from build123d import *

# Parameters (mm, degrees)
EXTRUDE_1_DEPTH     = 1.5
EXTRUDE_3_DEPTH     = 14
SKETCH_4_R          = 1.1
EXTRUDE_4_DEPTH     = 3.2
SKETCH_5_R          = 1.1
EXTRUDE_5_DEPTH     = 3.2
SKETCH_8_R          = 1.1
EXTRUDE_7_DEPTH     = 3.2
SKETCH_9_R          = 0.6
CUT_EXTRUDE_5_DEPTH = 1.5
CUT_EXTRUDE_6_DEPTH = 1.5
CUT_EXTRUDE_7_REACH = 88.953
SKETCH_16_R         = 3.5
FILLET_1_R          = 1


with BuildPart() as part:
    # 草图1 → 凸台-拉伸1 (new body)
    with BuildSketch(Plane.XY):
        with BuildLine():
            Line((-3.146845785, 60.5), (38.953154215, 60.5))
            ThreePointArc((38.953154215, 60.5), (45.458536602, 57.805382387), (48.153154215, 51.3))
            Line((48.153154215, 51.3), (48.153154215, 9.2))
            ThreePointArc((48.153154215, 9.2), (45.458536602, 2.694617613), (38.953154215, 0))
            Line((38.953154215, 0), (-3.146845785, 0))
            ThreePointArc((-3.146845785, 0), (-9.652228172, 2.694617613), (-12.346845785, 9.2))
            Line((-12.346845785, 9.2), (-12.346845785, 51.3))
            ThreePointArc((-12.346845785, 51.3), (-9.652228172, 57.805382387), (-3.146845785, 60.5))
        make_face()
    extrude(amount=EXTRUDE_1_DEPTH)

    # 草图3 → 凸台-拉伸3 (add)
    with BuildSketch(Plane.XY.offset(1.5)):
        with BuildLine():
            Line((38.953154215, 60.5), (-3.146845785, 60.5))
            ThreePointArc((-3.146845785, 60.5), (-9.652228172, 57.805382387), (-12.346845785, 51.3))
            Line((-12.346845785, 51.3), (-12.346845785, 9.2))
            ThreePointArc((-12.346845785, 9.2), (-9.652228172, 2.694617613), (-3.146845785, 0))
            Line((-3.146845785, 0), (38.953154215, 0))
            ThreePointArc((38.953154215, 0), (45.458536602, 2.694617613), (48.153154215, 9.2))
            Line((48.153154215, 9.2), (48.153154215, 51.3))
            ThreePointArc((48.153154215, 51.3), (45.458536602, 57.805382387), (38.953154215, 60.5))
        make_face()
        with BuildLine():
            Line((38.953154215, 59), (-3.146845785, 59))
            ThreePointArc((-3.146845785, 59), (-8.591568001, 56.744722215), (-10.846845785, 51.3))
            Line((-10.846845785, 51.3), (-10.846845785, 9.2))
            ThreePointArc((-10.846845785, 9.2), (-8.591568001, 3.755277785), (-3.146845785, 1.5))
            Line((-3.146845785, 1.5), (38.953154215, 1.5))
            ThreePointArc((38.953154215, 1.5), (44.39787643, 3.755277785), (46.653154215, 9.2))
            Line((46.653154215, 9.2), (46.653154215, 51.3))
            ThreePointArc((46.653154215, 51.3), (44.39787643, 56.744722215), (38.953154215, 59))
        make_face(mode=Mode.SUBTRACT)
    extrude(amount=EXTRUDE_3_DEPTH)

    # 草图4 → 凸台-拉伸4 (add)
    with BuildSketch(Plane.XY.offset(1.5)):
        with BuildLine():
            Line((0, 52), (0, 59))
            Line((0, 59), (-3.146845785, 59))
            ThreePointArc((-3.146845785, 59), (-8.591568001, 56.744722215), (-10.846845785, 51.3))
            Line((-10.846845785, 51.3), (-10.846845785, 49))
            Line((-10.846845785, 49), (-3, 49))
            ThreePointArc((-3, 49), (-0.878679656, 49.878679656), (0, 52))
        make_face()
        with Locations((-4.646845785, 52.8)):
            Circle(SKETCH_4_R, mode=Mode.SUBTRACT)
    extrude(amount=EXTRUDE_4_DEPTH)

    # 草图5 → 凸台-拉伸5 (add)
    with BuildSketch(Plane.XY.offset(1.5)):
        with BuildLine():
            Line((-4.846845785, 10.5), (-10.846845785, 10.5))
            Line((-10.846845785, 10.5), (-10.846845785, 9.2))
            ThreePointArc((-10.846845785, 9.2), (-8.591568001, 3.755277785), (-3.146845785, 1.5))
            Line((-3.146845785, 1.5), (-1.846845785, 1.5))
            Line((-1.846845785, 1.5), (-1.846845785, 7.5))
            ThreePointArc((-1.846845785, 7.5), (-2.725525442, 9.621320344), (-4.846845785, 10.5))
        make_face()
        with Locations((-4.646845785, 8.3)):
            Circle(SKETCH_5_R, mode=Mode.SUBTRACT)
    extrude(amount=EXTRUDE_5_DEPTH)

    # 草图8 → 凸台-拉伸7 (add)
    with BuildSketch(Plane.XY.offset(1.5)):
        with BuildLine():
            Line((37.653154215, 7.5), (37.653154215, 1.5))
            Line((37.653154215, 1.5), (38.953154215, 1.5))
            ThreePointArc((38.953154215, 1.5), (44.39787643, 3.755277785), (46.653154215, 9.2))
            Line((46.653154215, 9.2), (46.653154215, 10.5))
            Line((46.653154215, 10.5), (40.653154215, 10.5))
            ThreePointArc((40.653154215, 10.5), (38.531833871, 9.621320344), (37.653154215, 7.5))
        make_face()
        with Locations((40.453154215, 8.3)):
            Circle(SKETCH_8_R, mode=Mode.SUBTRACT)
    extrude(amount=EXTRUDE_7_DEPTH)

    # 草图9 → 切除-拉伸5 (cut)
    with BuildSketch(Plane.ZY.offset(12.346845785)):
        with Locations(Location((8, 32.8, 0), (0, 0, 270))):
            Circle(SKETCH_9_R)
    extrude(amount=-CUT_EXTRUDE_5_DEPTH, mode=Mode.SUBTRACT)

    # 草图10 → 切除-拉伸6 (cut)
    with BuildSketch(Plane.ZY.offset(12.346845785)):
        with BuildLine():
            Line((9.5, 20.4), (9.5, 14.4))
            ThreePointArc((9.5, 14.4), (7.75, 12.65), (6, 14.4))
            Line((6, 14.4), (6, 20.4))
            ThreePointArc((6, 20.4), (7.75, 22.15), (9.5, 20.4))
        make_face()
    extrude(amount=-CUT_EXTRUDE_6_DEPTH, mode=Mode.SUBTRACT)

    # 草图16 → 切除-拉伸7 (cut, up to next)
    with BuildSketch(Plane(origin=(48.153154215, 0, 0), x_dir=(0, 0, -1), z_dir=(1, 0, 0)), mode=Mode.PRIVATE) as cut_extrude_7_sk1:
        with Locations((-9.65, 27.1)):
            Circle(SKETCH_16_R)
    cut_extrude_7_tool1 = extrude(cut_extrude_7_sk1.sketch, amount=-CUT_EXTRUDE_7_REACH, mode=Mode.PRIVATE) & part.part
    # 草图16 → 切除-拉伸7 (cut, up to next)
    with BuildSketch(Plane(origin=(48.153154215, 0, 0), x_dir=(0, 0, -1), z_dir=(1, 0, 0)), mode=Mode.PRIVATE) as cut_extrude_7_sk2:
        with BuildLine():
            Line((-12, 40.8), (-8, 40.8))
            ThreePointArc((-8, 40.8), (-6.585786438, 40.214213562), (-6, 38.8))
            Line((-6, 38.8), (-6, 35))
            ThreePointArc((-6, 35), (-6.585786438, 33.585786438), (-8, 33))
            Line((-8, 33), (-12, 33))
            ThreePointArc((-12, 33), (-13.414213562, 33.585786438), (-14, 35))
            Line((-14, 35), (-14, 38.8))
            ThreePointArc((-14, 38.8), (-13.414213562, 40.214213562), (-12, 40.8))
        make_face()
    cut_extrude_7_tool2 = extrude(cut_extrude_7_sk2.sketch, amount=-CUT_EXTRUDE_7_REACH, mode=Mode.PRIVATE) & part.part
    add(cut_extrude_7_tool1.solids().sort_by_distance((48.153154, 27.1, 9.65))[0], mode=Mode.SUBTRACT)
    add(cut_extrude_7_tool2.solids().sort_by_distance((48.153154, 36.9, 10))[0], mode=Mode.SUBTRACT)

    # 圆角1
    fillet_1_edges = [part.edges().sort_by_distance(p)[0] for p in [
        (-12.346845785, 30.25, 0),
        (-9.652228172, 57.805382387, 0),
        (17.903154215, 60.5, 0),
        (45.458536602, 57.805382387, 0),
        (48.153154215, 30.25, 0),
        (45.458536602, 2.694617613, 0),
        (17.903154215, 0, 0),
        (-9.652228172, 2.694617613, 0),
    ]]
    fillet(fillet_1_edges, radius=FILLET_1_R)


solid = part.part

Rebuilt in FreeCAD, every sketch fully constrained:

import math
import FreeCAD as App
import Part
import Sketcher

V = App.Vector


def edges_at(feature, points):
    """Names of the edges that pass closest to the given points."""
    edges = feature.Shape.Edges
    near = lambda p: min(range(len(edges)), key=lambda i: edges[i].distToShape(Part.Vertex(*p))[0])
    return sorted({f"Edge{near(p) + 1}" for p in points})

doc = App.newDocument("Part")
body = doc.addObject("PartDesign::Body", "Body")

sketch1 = doc.addObject("Sketcher::SketchObject", "Sketch")
body.addObject(sketch1)
sketch1.AttachmentSupport = (doc.XY_Plane, [""])
sketch1.MapMode = "FlatFace"
sketch1.addGeometry([
    Part.LineSegment(V(38.953154, 60.5, 0), V(-3.146846, 60.5, 0)),
    Part.ArcOfCircle(Part.Circle(V(-3.146846, 51.3, 0), V(0, 0, 1), 9.2), math.radians(90), math.radians(180)),
    Part.LineSegment(V(-12.346846, 51.3, 0), V(-12.346846, 9.2, 0)),
    Part.ArcOfCircle(Part.Circle(V(-3.146846, 9.2, 0), V(0, 0, 1), 9.2), math.radians(180), math.radians(270)),
    Part.LineSegment(V(-3.146846, 0, 0), V(38.953154, 0, 0)),
    Part.ArcOfCircle(Part.Circle(V(38.953154, 9.2, 0), V(0, 0, 1), 9.2), math.radians(-90), math.radians(0)),
    Part.LineSegment(V(48.153154, 9.2, 0), V(48.153154, 51.3, 0)),
    Part.ArcOfCircle(Part.Circle(V(38.953154, 51.3, 0), V(0, 0, 1), 9.2), math.radians(0), math.radians(90)),
], False)
sketch1.addConstraint([
    Sketcher.Constraint("Tangent", 0, 2, 1, 1),
    Sketcher.Constraint("Tangent", 1, 2, 2, 1),
    Sketcher.Constraint("Tangent", 2, 2, 3, 1),
    Sketcher.Constraint("Tangent", 3, 2, 4, 1),
    Sketcher.Constraint("Tangent", 4, 2, 5, 1),
    Sketcher.Constraint("Tangent", 5, 2, 6, 1),
    Sketcher.Constraint("Tangent", 6, 2, 7, 1),
    Sketcher.Constraint("Tangent", 7, 2, 0, 1),
    Sketcher.Constraint("Horizontal", 0),
    Sketcher.Constraint("Vertical", 2),
    Sketcher.Constraint("Horizontal", 4),
    Sketcher.Constraint("Vertical", 6),
    Sketcher.Constraint("Equal", 1, 3),
    Sketcher.Constraint("Equal", 3, 5),
    Sketcher.Constraint("Equal", 5, 7),
    Sketcher.Constraint("PointOnObject", 3, 2, -1),
    Sketcher.Constraint("Equal", 4, 2),
    Sketcher.Constraint("Radius", 1, 9.2),
    Sketcher.Constraint("DistanceX", 0, 2, 0, 1, 42.1),
    Sketcher.Constraint("DistanceX", 1, 3, -1, 1, 3.146846),
])
pad1 = doc.addObject("PartDesign::Pad", "Pad")
body.addObject(pad1)
pad1.Profile = sketch1
pad1.Length = 1.5

sketch2 = doc.addObject("Sketcher::SketchObject", "Sketch001")
body.addObject(sketch2)
sketch2.AttachmentSupport = (doc.XY_Plane, [""])
sketch2.MapMode = "FlatFace"
sketch2.AttachmentOffset = App.Placement(V(0, 0, 1.5), App.Rotation())
sketch2.addGeometry([
    Part.LineSegment(V(38.953154, 60.5, 0), V(-3.146846, 60.5, 0)),
    Part.ArcOfCircle(Part.Circle(V(-3.146846, 51.3, 0), V(0, 0, 1), 9.2), math.radians(90), math.radians(180)),
    Part.LineSegment(V(-12.346846, 51.3, 0), V(-12.346846, 9.2, 0)),
    Part.ArcOfCircle(Part.Circle(V(-3.146846, 9.2, 0), V(0, 0, 1), 9.2), math.radians(180), math.radians(270)),
    Part.LineSegment(V(-3.146846, 0, 0), V(38.953154, 0, 0)),
    Part.ArcOfCircle(Part.Circle(V(38.953154, 9.2, 0), V(0, 0, 1), 9.2), math.radians(-90), math.radians(0)),
    Part.LineSegment(V(48.153154, 9.2, 0), V(48.153154, 51.3, 0)),
    Part.ArcOfCircle(Part.Circle(V(38.953154, 51.3, 0), V(0, 0, 1), 9.2), math.radians(0), math.radians(90)),
    Part.LineSegment(V(-3.146846, 59, 0), V(38.953154, 59, 0)),
    Part.ArcOfCircle(Part.Circle(V(38.953154, 51.3, 0), V(0, 0, 1), 7.7), math.radians(0), math.radians(90)),
    Part.LineSegment(V(46.653154, 51.3, 0), V(46.653154, 9.2, 0)),
    Part.ArcOfCircle(Part.Circle(V(38.953154, 9.2, 0), V(0, 0, 1), 7.7), math.radians(-90), math.radians(0)),
    Part.LineSegment(V(38.953154, 1.5, 0), V(-3.146846, 1.5, 0)),
    Part.ArcOfCircle(Part.Circle(V(-3.146846, 9.2, 0), V(0, 0, 1), 7.7), math.radians(180), math.radians(270)),
    Part.LineSegment(V(-10.846846, 9.2, 0), V(-10.846846, 51.3, 0)),
    Part.ArcOfCircle(Part.Circle(V(-3.146846, 51.3, 0), V(0, 0, 1), 7.7), math.radians(90), math.radians(180)),
], False)
sketch2.addConstraint([
    Sketcher.Constraint("Tangent", 0, 2, 1, 1),
    Sketcher.Constraint("Tangent", 1, 2, 2, 1),
    Sketcher.Constraint("Tangent", 2, 2, 3, 1),
    Sketcher.Constraint("Tangent", 3, 2, 4, 1),
    Sketcher.Constraint("Tangent", 4, 2, 5, 1),
    Sketcher.Constraint("Tangent", 5, 2, 6, 1),
    Sketcher.Constraint("Tangent", 6, 2, 7, 1),
    Sketcher.Constraint("Tangent", 7, 2, 0, 1),
    Sketcher.Constraint("Tangent", 8, 2, 9, 2),
    Sketcher.Constraint("Tangent", 9, 1, 10, 1),
    Sketcher.Constraint("Tangent", 10, 2, 11, 2),
    Sketcher.Constraint("Tangent", 11, 1, 12, 1),
    Sketcher.Constraint("Tangent", 12, 2, 13, 2),
    Sketcher.Constraint("Tangent", 13, 1, 14, 1),
    Sketcher.Constraint("Tangent", 14, 2, 15, 2),
    Sketcher.Constraint("Tangent", 15, 1, 8, 1),
    Sketcher.Constraint("Horizontal", 0),
    Sketcher.Constraint("Vertical", 2),
    Sketcher.Constraint("Horizontal", 4),
    Sketcher.Constraint("Vertical", 6),
    Sketcher.Constraint("Horizontal", 8),
    Sketcher.Constraint("Vertical", 10),
    Sketcher.Constraint("Horizontal", 12),
    Sketcher.Constraint("Vertical", 14),
    Sketcher.Constraint("Coincident", 9, 3, 7, 3),
    Sketcher.Constraint("Coincident", 11, 3, 5, 3),
    Sketcher.Constraint("Coincident", 13, 3, 3, 3),
    Sketcher.Constraint("Equal", 1, 3),
    Sketcher.Constraint("Equal", 3, 5),
    Sketcher.Constraint("Equal", 5, 7),
    Sketcher.Constraint("Equal", 13, 15),
    Sketcher.Constraint("PointOnObject", 3, 2, -1),
    Sketcher.Constraint("Equal", 12, 2),
    Sketcher.Constraint("Radius", 1, 9.2),
    Sketcher.Constraint("Radius", 9, 7.7),
    Sketcher.Constraint("DistanceX", 0, 2, 0, 1, 42.1),
    Sketcher.Constraint("DistanceX", 1, 3, -1, 1, 3.146846),
])
pad2 = doc.addObject("PartDesign::Pad", "Pad001")
body.addObject(pad2)
pad2.Profile = sketch2
pad2.Length = 14

sketch3 = doc.addObject("Sketcher::SketchObject", "Sketch002")
body.addObject(sketch3)
sketch3.AttachmentSupport = (doc.XY_Plane, [""])
sketch3.MapMode = "FlatFace"
sketch3.AttachmentOffset = App.Placement(V(0, 0, 1.5), App.Rotation())
sketch3.addGeometry([
    Part.LineSegment(V(0, 52, 0), V(0, 59, 0)),
    Part.LineSegment(V(0, 59, 0), V(-3.146846, 59, 0)),
    Part.ArcOfCircle(Part.Circle(V(-3.146846, 51.3, 0), V(0, 0, 1), 7.7), math.radians(90), math.radians(180)),
    Part.LineSegment(V(-10.846846, 51.3, 0), V(-10.846846, 49, 0)),
    Part.LineSegment(V(-10.846846, 49, 0), V(-3, 49, 0)),
    Part.ArcOfCircle(Part.Circle(V(-3, 52, 0), V(0, 0, 1), 3), math.radians(-90), math.radians(0)),
    Part.Circle(V(-4.646846, 52.8, 0), V(0, 0, 1), 1.1),
], False)
sketch3.addConstraint([
    Sketcher.Constraint("Coincident", 0, 2, 1, 1),
    Sketcher.Constraint("Tangent", 1, 2, 2, 1),
    Sketcher.Constraint("Tangent", 2, 2, 3, 1),
    Sketcher.Constraint("Coincident", 3, 2, 4, 1),
    Sketcher.Constraint("Tangent", 4, 2, 5, 1),
    Sketcher.Constraint("Tangent", 5, 2, 0, 1),
    Sketcher.Constraint("Vertical", 0),
    Sketcher.Constraint("Horizontal", 1),
    Sketcher.Constraint("Vertical", 3),
    Sketcher.Constraint("Horizontal", 4),
    Sketcher.Constraint("PointOnObject", 0, 2, -2),
    Sketcher.Constraint("Radius", 5, 3.0),
    Sketcher.Constraint("Diameter", 6, 2.2),
    Sketcher.Constraint("Radius", 2, 7.7),
    Sketcher.Constraint("DistanceY", 0, 1, 0, 2, 7.0),
    Sketcher.Constraint("DistanceY", -1, 1, 5, 3, 52.0),
    Sketcher.Constraint("DistanceY", -1, 1, 6, 3, 52.8),
    Sketcher.Constraint("DistanceX", 6, 3, 2, 3, 1.5),
    Sketcher.Constraint("DistanceX", 1, 2, 1, 1, 3.146846),
])
pad3 = doc.addObject("PartDesign::Pad", "Pad002")
body.addObject(pad3)
pad3.Profile = sketch3
pad3.Length = 3.2

sketch4 = doc.addObject("Sketcher::SketchObject", "Sketch003")
body.addObject(sketch4)
sketch4.AttachmentSupport = (doc.XY_Plane, [""])
sketch4.MapMode = "FlatFace"
sketch4.AttachmentOffset = App.Placement(V(0, 0, 1.5), App.Rotation())
sketch4.addGeometry([
    Part.LineSegment(V(-4.846846, 10.5, 0), V(-10.846846, 10.5, 0)),
    Part.LineSegment(V(-10.846846, 10.5, 0), V(-10.846846, 9.2, 0)),
    Part.ArcOfCircle(Part.Circle(V(-3.146846, 9.2, 0), V(0, 0, 1), 7.7), math.radians(180), math.radians(270)),
    Part.LineSegment(V(-3.146846, 1.5, 0), V(-1.846846, 1.5, 0)),
    Part.LineSegment(V(-1.846846, 1.5, 0), V(-1.846846, 7.5, 0)),
    Part.ArcOfCircle(Part.Circle(V(-4.846846, 7.5, 0), V(0, 0, 1), 3), math.radians(0), math.radians(90)),
    Part.Circle(V(-4.646846, 8.3, 0), V(0, 0, 1), 1.1),
], False)
sketch4.addConstraint([
    Sketcher.Constraint("Coincident", 0, 2, 1, 1),
    Sketcher.Constraint("Tangent", 1, 2, 2, 1),
    Sketcher.Constraint("Tangent", 2, 2, 3, 1),
    Sketcher.Constraint("Coincident", 3, 2, 4, 1),
    Sketcher.Constraint("Tangent", 4, 2, 5, 1),
    Sketcher.Constraint("Tangent", 5, 2, 0, 1),
    Sketcher.Constraint("Horizontal", 0),
    Sketcher.Constraint("Vertical", 1),
    Sketcher.Constraint("Horizontal", 3),
    Sketcher.Constraint("Vertical", 4),
    Sketcher.Constraint("Equal", 3, 1),
    Sketcher.Constraint("Radius", 5, 3.0),
    Sketcher.Constraint("Diameter", 6, 2.2),
    Sketcher.Constraint("Radius", 2, 7.7),
    Sketcher.Constraint("DistanceX", 0, 2, 0, 1, 6.0),
    Sketcher.Constraint("DistanceY", -1, 1, 2, 3, 9.2),
    Sketcher.Constraint("DistanceY", -1, 1, 6, 3, 8.3),
    Sketcher.Constraint("DistanceX", 5, 3, 6, 3, 0.2),
    Sketcher.Constraint("DistanceX", 2, 3, -1, 1, 3.146846),
])
pad4 = doc.addObject("PartDesign::Pad", "Pad003")
body.addObject(pad4)
pad4.Profile = sketch4
pad4.Length = 3.2

sketch5 = doc.addObject("Sketcher::SketchObject", "Sketch004")
body.addObject(sketch5)
sketch5.AttachmentSupport = (doc.XY_Plane, [""])
sketch5.MapMode = "FlatFace"
sketch5.AttachmentOffset = App.Placement(V(0, 0, 1.5), App.Rotation())
sketch5.addGeometry([
    Part.LineSegment(V(37.653154, 7.5, 0), V(37.653154, 1.5, 0)),
    Part.LineSegment(V(37.653154, 1.5, 0), V(38.953154, 1.5, 0)),
    Part.ArcOfCircle(Part.Circle(V(38.953154, 9.2, 0), V(0, 0, 1), 7.7), math.radians(-90), math.radians(0)),
    Part.LineSegment(V(46.653154, 9.2, 0), V(46.653154, 10.5, 0)),
    Part.LineSegment(V(46.653154, 10.5, 0), V(40.653154, 10.5, 0)),
    Part.ArcOfCircle(Part.Circle(V(40.653154, 7.5, 0), V(0, 0, 1), 3), math.radians(90), math.radians(180)),
    Part.Circle(V(40.453154, 8.3, 0), V(0, 0, 1), 1.1),
], False)
sketch5.addConstraint([
    Sketcher.Constraint("Coincident", 0, 2, 1, 1),
    Sketcher.Constraint("Tangent", 1, 2, 2, 1),
    Sketcher.Constraint("Tangent", 2, 2, 3, 1),
    Sketcher.Constraint("Coincident", 3, 2, 4, 1),
    Sketcher.Constraint("Tangent", 4, 2, 5, 1),
    Sketcher.Constraint("Tangent", 5, 2, 0, 1),
    Sketcher.Constraint("Vertical", 0),
    Sketcher.Constraint("Horizontal", 1),
    Sketcher.Constraint("Vertical", 3),
    Sketcher.Constraint("Horizontal", 4),
    Sketcher.Constraint("Equal", 4, 0),
    Sketcher.Constraint("Radius", 5, 3.0),
    Sketcher.Constraint("Diameter", 6, 2.2),
    Sketcher.Constraint("Radius", 2, 7.7),
    Sketcher.Constraint("DistanceX", 4, 2, 4, 1, 6.0),
    Sketcher.Constraint("DistanceY", -1, 1, 2, 3, 9.2),
    Sketcher.Constraint("DistanceY", -1, 1, 6, 3, 8.3),
    Sketcher.Constraint("DistanceX", 6, 3, 5, 3, 0.2),
    Sketcher.Constraint("DistanceX", -1, 1, 2, 3, 38.953154),
])
pad5 = doc.addObject("PartDesign::Pad", "Pad004")
body.addObject(pad5)
pad5.Profile = sketch5
pad5.Length = 3.2

sketch6 = doc.addObject("Sketcher::SketchObject", "Sketch005")
body.addObject(sketch6)
sketch6.AttachmentSupport = (doc.YZ_Plane, [""])
sketch6.MapMode = "FlatFace"
sketch6.AttachmentOffset = App.Placement(V(0, 0, -12.346846), App.Rotation())
sketch6.addGeometry(Part.Circle(V(32.8, 8, 0), V(0, 0, 1), 0.6), False)
sketch6.addConstraint([
    Sketcher.Constraint("Diameter", 0, 1.2),
    Sketcher.Constraint("DistanceY", -1, 1, 0, 3, 8.0),
    Sketcher.Constraint("DistanceX", -1, 1, 0, 3, 32.8),
])
pocket1 = doc.addObject("PartDesign::Pocket", "Pocket")
body.addObject(pocket1)
pocket1.Profile = sketch6
pocket1.Length = 1.5
pocket1.Reversed = True

sketch7 = doc.addObject("Sketcher::SketchObject", "Sketch006")
body.addObject(sketch7)
sketch7.AttachmentSupport = (doc.YZ_Plane, [""])
sketch7.MapMode = "FlatFace"
sketch7.AttachmentOffset = App.Placement(V(0, 0, -12.346846), App.Rotation())
sketch7.addGeometry([
    Part.LineSegment(V(14.4, 9.5, 0), V(20.4, 9.5, 0)),
    Part.ArcOfCircle(Part.Circle(V(20.4, 7.75, 0), V(0, 0, 1), 1.75), math.radians(-90), math.radians(90)),
    Part.LineSegment(V(20.4, 6, 0), V(14.4, 6, 0)),
    Part.ArcOfCircle(Part.Circle(V(14.4, 7.75, 0), V(0, 0, 1), 1.75), math.radians(90), math.radians(270)),
], False)
sketch7.addConstraint([
    Sketcher.Constraint("Tangent", 0, 2, 1, 2),
    Sketcher.Constraint("Tangent", 1, 1, 2, 1),
    Sketcher.Constraint("Tangent", 2, 2, 3, 2),
    Sketcher.Constraint("Tangent", 3, 1, 0, 1),
    Sketcher.Constraint("Horizontal", 0),
    Sketcher.Constraint("Horizontal", 2),
    Sketcher.Constraint("DistanceX", 0, 1, 0, 2, 6.0),
    Sketcher.Constraint("Radius", 1, 1.75),
    Sketcher.Constraint("DistanceY", -1, 1, 1, 1, 6.0),
    Sketcher.Constraint("DistanceX", -1, 1, 1, 3, 20.4),
])
pocket2 = doc.addObject("PartDesign::Pocket", "Pocket001")
body.addObject(pocket2)
pocket2.Profile = sketch7
pocket2.Length = 1.5
pocket2.Reversed = True

sketch8 = doc.addObject("Sketcher::SketchObject", "Sketch007")
body.addObject(sketch8)
sketch8.AttachmentSupport = (doc.YZ_Plane, [""])
sketch8.MapMode = "FlatFace"
sketch8.AttachmentOffset = App.Placement(V(0, 0, 48.153154), App.Rotation())
sketch8.addGeometry(Part.Circle(V(27.1, 9.65, 0), V(0, 0, 1), 3.5), False)
sketch8.addConstraint([
    Sketcher.Constraint("Diameter", 0, 7.0),
    Sketcher.Constraint("DistanceX", -1, 1, 0, 3, 27.1),
    Sketcher.Constraint("DistanceY", -1, 1, 0, 3, 9.65),
])
pocket3 = doc.addObject("PartDesign::Pocket", "Pocket002")
body.addObject(pocket3)
pocket3.Profile = sketch8
pocket3.Type = "UpToFirst"

sketch9 = doc.addObject("Sketcher::SketchObject", "Sketch008")
body.addObject(sketch9)
sketch9.AttachmentSupport = (doc.YZ_Plane, [""])
sketch9.MapMode = "FlatFace"
sketch9.AttachmentOffset = App.Placement(V(0, 0, 48.153154), App.Rotation())
sketch9.addGeometry([
    Part.LineSegment(V(40.8, 8, 0), V(40.8, 12, 0)),
    Part.ArcOfCircle(Part.Circle(V(38.8, 12, 0), V(0, 0, 1), 2), math.radians(0), math.radians(90)),
    Part.LineSegment(V(38.8, 14, 0), V(35, 14, 0)),
    Part.ArcOfCircle(Part.Circle(V(35, 12, 0), V(0, 0, 1), 2), math.radians(90), math.radians(180)),
    Part.LineSegment(V(33, 12, 0), V(33, 8, 0)),
    Part.ArcOfCircle(Part.Circle(V(35, 8, 0), V(0, 0, 1), 2), math.radians(-180), math.radians(-90)),
    Part.LineSegment(V(35, 6, 0), V(38.8, 6, 0)),
    Part.ArcOfCircle(Part.Circle(V(38.8, 8, 0), V(0, 0, 1), 2), math.radians(-90), math.radians(0)),
], False)
sketch9.addConstraint([
    Sketcher.Constraint("Tangent", 0, 2, 1, 1),
    Sketcher.Constraint("Tangent", 1, 2, 2, 1),
    Sketcher.Constraint("Tangent", 2, 2, 3, 1),
    Sketcher.Constraint("Tangent", 3, 2, 4, 1),
    Sketcher.Constraint("Tangent", 4, 2, 5, 1),
    Sketcher.Constraint("Tangent", 5, 2, 6, 1),
    Sketcher.Constraint("Tangent", 6, 2, 7, 1),
    Sketcher.Constraint("Tangent", 7, 2, 0, 1),
    Sketcher.Constraint("Vertical", 0),
    Sketcher.Constraint("Horizontal", 2),
    Sketcher.Constraint("Vertical", 4),
    Sketcher.Constraint("Horizontal", 6),
    Sketcher.Constraint("Equal", 1, 3),
    Sketcher.Constraint("Equal", 3, 5),
    Sketcher.Constraint("Equal", 5, 7),
    Sketcher.Constraint("Radius", 1, 2.0),
    Sketcher.Constraint("DistanceY", 0, 1, 0, 2, 4.0),
    Sketcher.Constraint("DistanceX", 2, 2, 2, 1, 3.8),
    Sketcher.Constraint("DistanceY", -1, 1, 1, 3, 12.0),
    Sketcher.Constraint("DistanceX", -1, 1, 3, 3, 35.0),
])
pocket4 = doc.addObject("PartDesign::Pocket", "Pocket003")
body.addObject(pocket4)
pocket4.Profile = sketch9
pocket4.Type = "UpToFirst"
doc.recompute()

fillet = doc.addObject("PartDesign::Fillet", "Fillet")
body.addObject(fillet)
fillet.Base = (pocket4, edges_at(pocket4, [
    (-12.347, 30.25, 0),
    (-9.652, 57.805, 0),
    (17.903, 60.5, 0),
    (45.459, 57.805, 0),
    (48.153, 30.25, 0),
    (45.459, 2.695, 0),
    (17.903, 0, 0),
    (-9.652, 2.695, 0),
]))
fillet.Radius = 1

doc.recompute()
